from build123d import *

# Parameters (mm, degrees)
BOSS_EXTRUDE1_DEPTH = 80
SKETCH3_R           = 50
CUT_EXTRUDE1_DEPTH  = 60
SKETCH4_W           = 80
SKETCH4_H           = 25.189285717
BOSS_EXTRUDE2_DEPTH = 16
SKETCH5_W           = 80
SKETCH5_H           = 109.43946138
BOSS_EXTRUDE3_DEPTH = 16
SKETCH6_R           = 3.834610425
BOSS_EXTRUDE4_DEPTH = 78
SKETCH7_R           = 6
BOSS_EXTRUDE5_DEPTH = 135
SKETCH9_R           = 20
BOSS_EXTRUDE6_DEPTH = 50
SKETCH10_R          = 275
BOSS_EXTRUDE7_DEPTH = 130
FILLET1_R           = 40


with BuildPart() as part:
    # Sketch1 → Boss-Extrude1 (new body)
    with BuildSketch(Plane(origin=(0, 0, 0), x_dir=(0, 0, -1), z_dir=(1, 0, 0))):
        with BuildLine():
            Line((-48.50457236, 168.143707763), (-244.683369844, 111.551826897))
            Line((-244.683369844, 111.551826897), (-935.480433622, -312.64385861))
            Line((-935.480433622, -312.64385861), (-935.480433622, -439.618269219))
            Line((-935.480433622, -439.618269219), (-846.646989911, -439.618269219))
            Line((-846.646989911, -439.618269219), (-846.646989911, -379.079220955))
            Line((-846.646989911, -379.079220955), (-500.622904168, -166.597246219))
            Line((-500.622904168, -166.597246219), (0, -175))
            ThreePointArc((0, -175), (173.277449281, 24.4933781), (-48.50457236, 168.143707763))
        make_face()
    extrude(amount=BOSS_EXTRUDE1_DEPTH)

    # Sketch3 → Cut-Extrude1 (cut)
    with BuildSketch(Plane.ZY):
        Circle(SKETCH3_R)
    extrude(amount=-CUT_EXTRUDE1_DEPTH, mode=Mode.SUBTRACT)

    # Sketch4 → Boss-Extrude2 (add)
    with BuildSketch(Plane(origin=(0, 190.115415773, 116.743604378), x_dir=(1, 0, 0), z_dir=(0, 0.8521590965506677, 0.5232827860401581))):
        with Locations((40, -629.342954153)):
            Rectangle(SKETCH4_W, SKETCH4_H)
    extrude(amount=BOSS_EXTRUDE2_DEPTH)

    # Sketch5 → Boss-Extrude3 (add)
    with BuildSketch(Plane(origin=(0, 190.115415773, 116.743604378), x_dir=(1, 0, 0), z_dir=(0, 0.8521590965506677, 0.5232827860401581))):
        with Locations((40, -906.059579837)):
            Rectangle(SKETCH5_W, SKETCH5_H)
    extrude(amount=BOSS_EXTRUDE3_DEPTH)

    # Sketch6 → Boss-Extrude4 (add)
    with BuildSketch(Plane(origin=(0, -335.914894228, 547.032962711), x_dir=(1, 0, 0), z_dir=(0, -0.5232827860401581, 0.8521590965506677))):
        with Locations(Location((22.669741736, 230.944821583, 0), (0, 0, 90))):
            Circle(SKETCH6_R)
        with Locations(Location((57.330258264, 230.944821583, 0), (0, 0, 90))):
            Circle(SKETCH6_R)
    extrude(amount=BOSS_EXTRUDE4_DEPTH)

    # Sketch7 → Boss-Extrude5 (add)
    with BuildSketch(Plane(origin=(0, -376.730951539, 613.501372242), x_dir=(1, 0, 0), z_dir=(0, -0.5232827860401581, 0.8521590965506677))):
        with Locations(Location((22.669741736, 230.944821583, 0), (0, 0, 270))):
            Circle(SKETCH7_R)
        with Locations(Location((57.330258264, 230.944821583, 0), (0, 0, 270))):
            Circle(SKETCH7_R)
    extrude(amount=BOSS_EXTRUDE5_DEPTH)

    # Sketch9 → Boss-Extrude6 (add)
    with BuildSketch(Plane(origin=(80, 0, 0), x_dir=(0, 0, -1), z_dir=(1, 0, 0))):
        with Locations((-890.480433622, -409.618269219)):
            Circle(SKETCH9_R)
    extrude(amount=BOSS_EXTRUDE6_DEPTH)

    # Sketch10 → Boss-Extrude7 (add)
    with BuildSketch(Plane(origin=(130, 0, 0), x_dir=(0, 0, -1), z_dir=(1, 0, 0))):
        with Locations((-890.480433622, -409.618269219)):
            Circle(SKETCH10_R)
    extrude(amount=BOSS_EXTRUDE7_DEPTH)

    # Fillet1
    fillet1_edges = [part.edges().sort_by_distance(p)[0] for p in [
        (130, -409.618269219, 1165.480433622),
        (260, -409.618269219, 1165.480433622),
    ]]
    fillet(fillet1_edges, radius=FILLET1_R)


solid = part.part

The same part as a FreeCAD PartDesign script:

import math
import FreeCAD as App
import Part
import Sketcher

V = App.Vector


def edges_at(feature, points):
    """Names of the edges that pass closest to the given points."""
    edges = feature.Shape.Edges
    near = lambda p: min(range(len(edges)), key=lambda i: edges[i].distToShape(Part.Vertex(*p))[0])
    return sorted({f"Edge{near(p) + 1}" for p in points})

doc = App.newDocument("Part")
params = doc.addObject("Spreadsheet::Sheet", "Params")
for row, (alias, value) in enumerate([
    ("sketch1_radius", "175 mm"),
    ("pad1_length", "80 mm"),
    ("sketch2_diameter", "100 mm"),
    ("pocket1_length", "60 mm"),
    ("sketch3_width", "80 mm"),
    ("pad2_length", "16 mm"),
    ("sketch4_width", "80 mm"),
    ("pad3_length", "16 mm"),
    ("pad4_length", "78 mm"),
    ("sketch6_diameter", "12 mm"),
    ("pad5_length", "135 mm"),
    ("sketch7_diameter", "40 mm"),
    ("pad6_length", "50 mm"),
    ("sketch8_diameter", "550 mm"),
    ("pad7_length", "130 mm"),
    ("fillet_radius", "40 mm"),
], start=1):
    params.set(f"A{row}", alias)
    params.set(f"B{row}", "=" + value)
    params.setAlias(f"B{row}", alias)

body = doc.addObject("PartDesign::Body", "Body")

sketch1 = doc.addObject("Sketcher::SketchObject", "Sketch")
body.addObject(sketch1)
sketch1.AttachmentSupport = (doc.YZ_Plane, [""])
sketch1.MapMode = "FlatFace"
sketch1.addGeometry([
    Part.LineSegment(V(168, 49, 0), V(112, 245, 0)),
    Part.LineSegment(V(112, 245, 0), V(-313, 935, 0)),
    Part.LineSegment(V(-313, 935, 0), V(-440, 935, 0)),
    Part.LineSegment(V(-440, 935, 0), V(-440, 847, 0)),
    Part.LineSegment(V(-440, 847, 0), V(-379, 847, 0)),
    Part.LineSegment(V(-379, 847, 0), V(-167, 501, 0)),
    Part.LineSegment(V(-167, 501, 0), V(-175, 0, 0)),
    Part.ArcOfCircle(Part.Circle(V(0, 0, 0), V(0, 0, 1), 175), math.radians(180), math.radians(376)),
], False)
sketch1.addConstraint([
    Sketcher.Constraint("Coincident", 0, 2, 1, 1),
    Sketcher.Constraint("Coincident", 1, 2, 2, 1),
    Sketcher.Constraint("Coincident", 2, 2, 3, 1),
    Sketcher.Constraint("Coincident", 3, 2, 4, 1),
    Sketcher.Constraint("Coincident", 4, 2, 5, 1),
    Sketcher.Constraint("Coincident", 5, 2, 6, 1),
    Sketcher.Constraint("Coincident", 6, 2, 7, 1),
    Sketcher.Constraint("Tangent", 7, 2, 0, 1),
    Sketcher.Constraint("Horizontal", 2),
    Sketcher.Constraint("Vertical", 3),
    Sketcher.Constraint("Horizontal", 4),
    Sketcher.Constraint("Coincident", 7, 3, -1, 1),
    Sketcher.Constraint("PointOnObject", 6, 2, -1),
    Sketcher.Constraint("Parallel", 1, 5),
    Sketcher.Constraint("Radius", 7, 175.0),
    Sketcher.Constraint("Distance", 1, 810.643302),
    Sketcher.Constraint("DistanceX", 2, 2, 2, 1, 126.974411),
    Sketcher.Constraint("DistanceX", 4, 1, 4, 2, 60.539048),
    Sketcher.Constraint("Distance", 0, 204.178259),
    Sketcher.Constraint("DistanceY", 3, 2, 3, 1, 88.833444),
    Sketcher.Constraint("DistanceY", -1, 1, 0, 2, 244.68337),
    Sketcher.Constraint("DistanceX", 1, 2, -1, 1, 312.643859),
    Sketcher.Constraint("DistanceY", 5, 2, 1, 2, 434.857529),
])
sketch1.setExpression("Constraints[14]", "Params.sketch1_radius")
pad1 = doc.addObject("PartDesign::Pad", "Pad")
body.addObject(pad1)
pad1.Profile = sketch1
pad1.setExpression("Length", "Params.pad1_length")

sketch2 = doc.addObject("Sketcher::SketchObject", "Sketch001")
body.addObject(sketch2)
sketch2.AttachmentSupport = (doc.YZ_Plane, [""])
sketch2.MapMode = "FlatFace"
sketch2.addGeometry(Part.Circle(V(0, 0, 0), V(0, 0, 1), 50), False)
sketch2.addConstraint([
    Sketcher.Constraint("Coincident", 0, 3, -1, 1),
    Sketcher.Constraint("Diameter", 0, 100.0),
])
sketch2.setExpression("Constraints[1]", "Params.sketch2_diameter")
pocket1 = doc.addObject("PartDesign::Pocket", "Pocket")
body.addObject(pocket1)
pocket1.Profile = sketch2
pocket1.setExpression("Length", "Params.pocket1_length")
pocket1.Reversed = True

sketch3 = doc.addObject("Sketcher::SketchObject", "Sketch002")
body.addObject(sketch3)
sketch3.Placement = App.Placement(V(0, 190.115416, 116.743604), App.Rotation(V(1, 0, 0), V(0, 0.523282786, -0.852159097), V(0, 0.852159097, 0.523282786), "ZXY"))
sketch3.addGeometry([
    Part.LineSegment(V(0, -617, 0), V(0, -642, 0)),
    Part.LineSegment(V(0, -642, 0), V(80, -642, 0)),
    Part.LineSegment(V(80, -642, 0), V(80, -617, 0)),
    Part.LineSegment(V(80, -617, 0), V(0, -617, 0)),
], False)
sketch3.addConstraint([
    Sketcher.Constraint("Coincident", 0, 2, 1, 1),
    Sketcher.Constraint("Coincident", 1, 2, 2, 1),
    Sketcher.Constraint("Coincident", 2, 2, 3, 1),
    Sketcher.Constraint("Coincident", 3, 2, 0, 1),
    Sketcher.Constraint("Vertical", 0),
    Sketcher.Constraint("Horizontal", 1),
    Sketcher.Constraint("Vertical", 2),
    Sketcher.Constraint("Horizontal", 3),
    Sketcher.Constraint("PointOnObject", 0, 2, -2),
    Sketcher.Constraint("DistanceX", 1, 1, 1, 2, 80.0),
    Sketcher.Constraint("DistanceY", 0, 2, 0, 1, 25.189286),
    Sketcher.Constraint("DistanceY", 2, 2, -1, 1, 616.748312),
])
sketch3.setExpression("Constraints[9]", "Params.sketch3_width")
pad2 = doc.addObject("PartDesign::Pad", "Pad001")
body.addObject(pad2)
pad2.Profile = sketch3
pad2.setExpression("Length", "Params.pad2_length")

sketch4 = doc.addObject("Sketcher::SketchObject", "Sketch003")
body.addObject(sketch4)
sketch4.Placement = App.Placement(V(0, 190.115416, 116.743604), App.Rotation(V(1, 0, 0), V(0, 0.523282786, -0.852159097), V(0, 0.852159097, 0.523282786), "ZXY"))
sketch4.addGeometry([
    Part.LineSegment(V(0, -851, 0), V(0, -961, 0)),
    Part.LineSegment(V(0, -961, 0), V(80, -961, 0)),
    Part.LineSegment(V(80, -961, 0), V(80, -851, 0)),
    Part.LineSegment(V(80, -851, 0), V(0, -851, 0)),
], False)
sketch4.addConstraint([
    Sketcher.Constraint("Coincident", 0, 2, 1, 1),
    Sketcher.Constraint("Coincident", 1, 2, 2, 1),
    Sketcher.Constraint("Coincident", 2, 2, 3, 1),
    Sketcher.Constraint("Coincident", 3, 2, 0, 1),
    Sketcher.Constraint("Vertical", 0),
    Sketcher.Constraint("Horizontal", 1),
    Sketcher.Constraint("Vertical", 2),
    Sketcher.Constraint("Horizontal", 3),
    Sketcher.Constraint("PointOnObject", 0, 2, -2),
    Sketcher.Constraint("DistanceX", 1, 1, 1, 2, 80.0),
    Sketcher.Constraint("DistanceY", 0, 2, 0, 1, 109.439461),
    Sketcher.Constraint("DistanceY", 0, 2, -1, 1, 960.779311),
])
sketch4.setExpression("Constraints[9]", "Params.sketch4_width")
pad3 = doc.addObject("PartDesign::Pad", "Pad002")
body.addObject(pad3)
pad3.Profile = sketch4
pad3.setExpression("Length", "Params.pad3_length")

sketch5 = doc.addObject("Sketcher::SketchObject", "Sketch004")
body.addObject(sketch5)
sketch5.Placement = App.Placement(V(0, -335.914894, 547.032963), App.Rotation(V(1, 0, 0), V(0, 0.852159097, 0.523282786), V(0, -0.523282786, 0.852159097), "ZXY"))
sketch5.addGeometry([
    Part.Circle(V(22.7, 230.9, 0), V(0, 0, 1), 3.8),
    Part.Circle(V(57.3, 230.9, 0), V(0, 0, 1), 3.8),
], False)
sketch5.addConstraint([
    Sketcher.Constraint("Equal", 0, 1),
    Sketcher.Constraint("Horizontal", 0, 3, 1, 3),
    Sketcher.Constraint("Diameter", 0, 7.669221),
    Sketcher.Constraint("DistanceX", -1, 1, 0, 3, 22.669742),
    Sketcher.Constraint("DistanceY", -1, 1, 0, 3, 230.944822),
    Sketcher.Constraint("DistanceX", -1, 1, 1, 3, 57.330258),
])
pad4 = doc.addObject("PartDesign::Pad", "Pad003")
body.addObject(pad4)
pad4.Profile = sketch5
pad4.setExpression("Length", "Params.pad4_length")

sketch6 = doc.addObject("Sketcher::SketchObject", "Sketch005")
body.addObject(sketch6)
sketch6.Placement = App.Placement(V(0, -376.730952, 613.501372), App.Rotation(V(1, 0, 0), V(0, 0.852159097, 0.523282786), V(0, -0.523282786, 0.852159097), "ZXY"))
sketch6.addGeometry([
    Part.Circle(V(23, 231, 0), V(0, 0, 1), 6),
    Part.Circle(V(57, 231, 0), V(0, 0, 1), 6),
], False)
sketch6.addConstraint([
    Sketcher.Constraint("Equal", 0, 1),
    Sketcher.Constraint("Horizontal", 0, 3, 1, 3),
    Sketcher.Constraint("Diameter", 0, 12.0),
    Sketcher.Constraint("DistanceX", -1, 1, 0, 3, 22.669742),
    Sketcher.Constraint("DistanceY", -1, 1, 0, 3, 230.944822),
    Sketcher.Constraint("DistanceX", -1, 1, 1, 3, 57.330258),
])
sketch6.setExpression("Constraints[2]", "Params.sketch6_diameter")
pad5 = doc.addObject("PartDesign::Pad", "Pad004")
body.addObject(pad5)
pad5.Profile = sketch6
pad5.setExpression("Length", "Params.pad5_length")

sketch7 = doc.addObject("Sketcher::SketchObject", "Sketch006")
body.addObject(sketch7)
sketch7.AttachmentSupport = (doc.YZ_Plane, [""])
sketch7.MapMode = "FlatFace"
sketch7.AttachmentOffset = App.Placement(V(0, 0, 80), App.Rotation())
sketch7.addGeometry(Part.Circle(V(-410, 890, 0), V(0, 0, 1), 20), False)
sketch7.addConstraint([
    Sketcher.Constraint("Diameter", 0, 40.0),
    Sketcher.Constraint("DistanceX", 0, 3, -1, 1, 409.618269),
    Sketcher.Constraint("DistanceY", -1, 1, 0, 3, 890.480434),
])
sketch7.setExpression("Constraints[0]", "Params.sketch7_diameter")
pad6 = doc.addObject("PartDesign::Pad", "Pad005")
body.addObject(pad6)
pad6.Profile = sketch7
pad6.setExpression("Length", "Params.pad6_length")

sketch8 = doc.addObject("Sketcher::SketchObject", "Sketch007")
body.addObject(sketch8)
sketch8.AttachmentSupport = (doc.YZ_Plane, [""])
sketch8.MapMode = "FlatFace"
sketch8.AttachmentOffset = App.Placement(V(0, 0, 130), App.Rotation())
sketch8.addGeometry(Part.Circle(V(-410, 890, 0), V(0, 0, 1), 275), False)
sketch8.addConstraint([
    Sketcher.Constraint("Diameter", 0, 550.0),
    Sketcher.Constraint("DistanceX", 0, 3, -1, 1, 409.618269),
    Sketcher.Constraint("DistanceY", -1, 1, 0, 3, 890.480434),
])
sketch8.setExpression("Constraints[0]", "Params.sketch8_diameter")
pad7 = doc.addObject("PartDesign::Pad", "Pad006")
body.addObject(pad7)
pad7.Profile = sketch8
pad7.setExpression("Length", "Params.pad7_length")
doc.recompute()

fillet = doc.addObject("PartDesign::Fillet", "Fillet")
body.addObject(fillet)
fillet.Base = (pad7, edges_at(pad7, [(130, -409.618, 1165.48), (260, -409.618, 1165.48)]))
fillet.setExpression("Radius", "Params.fillet_radius")

doc.recompute()
